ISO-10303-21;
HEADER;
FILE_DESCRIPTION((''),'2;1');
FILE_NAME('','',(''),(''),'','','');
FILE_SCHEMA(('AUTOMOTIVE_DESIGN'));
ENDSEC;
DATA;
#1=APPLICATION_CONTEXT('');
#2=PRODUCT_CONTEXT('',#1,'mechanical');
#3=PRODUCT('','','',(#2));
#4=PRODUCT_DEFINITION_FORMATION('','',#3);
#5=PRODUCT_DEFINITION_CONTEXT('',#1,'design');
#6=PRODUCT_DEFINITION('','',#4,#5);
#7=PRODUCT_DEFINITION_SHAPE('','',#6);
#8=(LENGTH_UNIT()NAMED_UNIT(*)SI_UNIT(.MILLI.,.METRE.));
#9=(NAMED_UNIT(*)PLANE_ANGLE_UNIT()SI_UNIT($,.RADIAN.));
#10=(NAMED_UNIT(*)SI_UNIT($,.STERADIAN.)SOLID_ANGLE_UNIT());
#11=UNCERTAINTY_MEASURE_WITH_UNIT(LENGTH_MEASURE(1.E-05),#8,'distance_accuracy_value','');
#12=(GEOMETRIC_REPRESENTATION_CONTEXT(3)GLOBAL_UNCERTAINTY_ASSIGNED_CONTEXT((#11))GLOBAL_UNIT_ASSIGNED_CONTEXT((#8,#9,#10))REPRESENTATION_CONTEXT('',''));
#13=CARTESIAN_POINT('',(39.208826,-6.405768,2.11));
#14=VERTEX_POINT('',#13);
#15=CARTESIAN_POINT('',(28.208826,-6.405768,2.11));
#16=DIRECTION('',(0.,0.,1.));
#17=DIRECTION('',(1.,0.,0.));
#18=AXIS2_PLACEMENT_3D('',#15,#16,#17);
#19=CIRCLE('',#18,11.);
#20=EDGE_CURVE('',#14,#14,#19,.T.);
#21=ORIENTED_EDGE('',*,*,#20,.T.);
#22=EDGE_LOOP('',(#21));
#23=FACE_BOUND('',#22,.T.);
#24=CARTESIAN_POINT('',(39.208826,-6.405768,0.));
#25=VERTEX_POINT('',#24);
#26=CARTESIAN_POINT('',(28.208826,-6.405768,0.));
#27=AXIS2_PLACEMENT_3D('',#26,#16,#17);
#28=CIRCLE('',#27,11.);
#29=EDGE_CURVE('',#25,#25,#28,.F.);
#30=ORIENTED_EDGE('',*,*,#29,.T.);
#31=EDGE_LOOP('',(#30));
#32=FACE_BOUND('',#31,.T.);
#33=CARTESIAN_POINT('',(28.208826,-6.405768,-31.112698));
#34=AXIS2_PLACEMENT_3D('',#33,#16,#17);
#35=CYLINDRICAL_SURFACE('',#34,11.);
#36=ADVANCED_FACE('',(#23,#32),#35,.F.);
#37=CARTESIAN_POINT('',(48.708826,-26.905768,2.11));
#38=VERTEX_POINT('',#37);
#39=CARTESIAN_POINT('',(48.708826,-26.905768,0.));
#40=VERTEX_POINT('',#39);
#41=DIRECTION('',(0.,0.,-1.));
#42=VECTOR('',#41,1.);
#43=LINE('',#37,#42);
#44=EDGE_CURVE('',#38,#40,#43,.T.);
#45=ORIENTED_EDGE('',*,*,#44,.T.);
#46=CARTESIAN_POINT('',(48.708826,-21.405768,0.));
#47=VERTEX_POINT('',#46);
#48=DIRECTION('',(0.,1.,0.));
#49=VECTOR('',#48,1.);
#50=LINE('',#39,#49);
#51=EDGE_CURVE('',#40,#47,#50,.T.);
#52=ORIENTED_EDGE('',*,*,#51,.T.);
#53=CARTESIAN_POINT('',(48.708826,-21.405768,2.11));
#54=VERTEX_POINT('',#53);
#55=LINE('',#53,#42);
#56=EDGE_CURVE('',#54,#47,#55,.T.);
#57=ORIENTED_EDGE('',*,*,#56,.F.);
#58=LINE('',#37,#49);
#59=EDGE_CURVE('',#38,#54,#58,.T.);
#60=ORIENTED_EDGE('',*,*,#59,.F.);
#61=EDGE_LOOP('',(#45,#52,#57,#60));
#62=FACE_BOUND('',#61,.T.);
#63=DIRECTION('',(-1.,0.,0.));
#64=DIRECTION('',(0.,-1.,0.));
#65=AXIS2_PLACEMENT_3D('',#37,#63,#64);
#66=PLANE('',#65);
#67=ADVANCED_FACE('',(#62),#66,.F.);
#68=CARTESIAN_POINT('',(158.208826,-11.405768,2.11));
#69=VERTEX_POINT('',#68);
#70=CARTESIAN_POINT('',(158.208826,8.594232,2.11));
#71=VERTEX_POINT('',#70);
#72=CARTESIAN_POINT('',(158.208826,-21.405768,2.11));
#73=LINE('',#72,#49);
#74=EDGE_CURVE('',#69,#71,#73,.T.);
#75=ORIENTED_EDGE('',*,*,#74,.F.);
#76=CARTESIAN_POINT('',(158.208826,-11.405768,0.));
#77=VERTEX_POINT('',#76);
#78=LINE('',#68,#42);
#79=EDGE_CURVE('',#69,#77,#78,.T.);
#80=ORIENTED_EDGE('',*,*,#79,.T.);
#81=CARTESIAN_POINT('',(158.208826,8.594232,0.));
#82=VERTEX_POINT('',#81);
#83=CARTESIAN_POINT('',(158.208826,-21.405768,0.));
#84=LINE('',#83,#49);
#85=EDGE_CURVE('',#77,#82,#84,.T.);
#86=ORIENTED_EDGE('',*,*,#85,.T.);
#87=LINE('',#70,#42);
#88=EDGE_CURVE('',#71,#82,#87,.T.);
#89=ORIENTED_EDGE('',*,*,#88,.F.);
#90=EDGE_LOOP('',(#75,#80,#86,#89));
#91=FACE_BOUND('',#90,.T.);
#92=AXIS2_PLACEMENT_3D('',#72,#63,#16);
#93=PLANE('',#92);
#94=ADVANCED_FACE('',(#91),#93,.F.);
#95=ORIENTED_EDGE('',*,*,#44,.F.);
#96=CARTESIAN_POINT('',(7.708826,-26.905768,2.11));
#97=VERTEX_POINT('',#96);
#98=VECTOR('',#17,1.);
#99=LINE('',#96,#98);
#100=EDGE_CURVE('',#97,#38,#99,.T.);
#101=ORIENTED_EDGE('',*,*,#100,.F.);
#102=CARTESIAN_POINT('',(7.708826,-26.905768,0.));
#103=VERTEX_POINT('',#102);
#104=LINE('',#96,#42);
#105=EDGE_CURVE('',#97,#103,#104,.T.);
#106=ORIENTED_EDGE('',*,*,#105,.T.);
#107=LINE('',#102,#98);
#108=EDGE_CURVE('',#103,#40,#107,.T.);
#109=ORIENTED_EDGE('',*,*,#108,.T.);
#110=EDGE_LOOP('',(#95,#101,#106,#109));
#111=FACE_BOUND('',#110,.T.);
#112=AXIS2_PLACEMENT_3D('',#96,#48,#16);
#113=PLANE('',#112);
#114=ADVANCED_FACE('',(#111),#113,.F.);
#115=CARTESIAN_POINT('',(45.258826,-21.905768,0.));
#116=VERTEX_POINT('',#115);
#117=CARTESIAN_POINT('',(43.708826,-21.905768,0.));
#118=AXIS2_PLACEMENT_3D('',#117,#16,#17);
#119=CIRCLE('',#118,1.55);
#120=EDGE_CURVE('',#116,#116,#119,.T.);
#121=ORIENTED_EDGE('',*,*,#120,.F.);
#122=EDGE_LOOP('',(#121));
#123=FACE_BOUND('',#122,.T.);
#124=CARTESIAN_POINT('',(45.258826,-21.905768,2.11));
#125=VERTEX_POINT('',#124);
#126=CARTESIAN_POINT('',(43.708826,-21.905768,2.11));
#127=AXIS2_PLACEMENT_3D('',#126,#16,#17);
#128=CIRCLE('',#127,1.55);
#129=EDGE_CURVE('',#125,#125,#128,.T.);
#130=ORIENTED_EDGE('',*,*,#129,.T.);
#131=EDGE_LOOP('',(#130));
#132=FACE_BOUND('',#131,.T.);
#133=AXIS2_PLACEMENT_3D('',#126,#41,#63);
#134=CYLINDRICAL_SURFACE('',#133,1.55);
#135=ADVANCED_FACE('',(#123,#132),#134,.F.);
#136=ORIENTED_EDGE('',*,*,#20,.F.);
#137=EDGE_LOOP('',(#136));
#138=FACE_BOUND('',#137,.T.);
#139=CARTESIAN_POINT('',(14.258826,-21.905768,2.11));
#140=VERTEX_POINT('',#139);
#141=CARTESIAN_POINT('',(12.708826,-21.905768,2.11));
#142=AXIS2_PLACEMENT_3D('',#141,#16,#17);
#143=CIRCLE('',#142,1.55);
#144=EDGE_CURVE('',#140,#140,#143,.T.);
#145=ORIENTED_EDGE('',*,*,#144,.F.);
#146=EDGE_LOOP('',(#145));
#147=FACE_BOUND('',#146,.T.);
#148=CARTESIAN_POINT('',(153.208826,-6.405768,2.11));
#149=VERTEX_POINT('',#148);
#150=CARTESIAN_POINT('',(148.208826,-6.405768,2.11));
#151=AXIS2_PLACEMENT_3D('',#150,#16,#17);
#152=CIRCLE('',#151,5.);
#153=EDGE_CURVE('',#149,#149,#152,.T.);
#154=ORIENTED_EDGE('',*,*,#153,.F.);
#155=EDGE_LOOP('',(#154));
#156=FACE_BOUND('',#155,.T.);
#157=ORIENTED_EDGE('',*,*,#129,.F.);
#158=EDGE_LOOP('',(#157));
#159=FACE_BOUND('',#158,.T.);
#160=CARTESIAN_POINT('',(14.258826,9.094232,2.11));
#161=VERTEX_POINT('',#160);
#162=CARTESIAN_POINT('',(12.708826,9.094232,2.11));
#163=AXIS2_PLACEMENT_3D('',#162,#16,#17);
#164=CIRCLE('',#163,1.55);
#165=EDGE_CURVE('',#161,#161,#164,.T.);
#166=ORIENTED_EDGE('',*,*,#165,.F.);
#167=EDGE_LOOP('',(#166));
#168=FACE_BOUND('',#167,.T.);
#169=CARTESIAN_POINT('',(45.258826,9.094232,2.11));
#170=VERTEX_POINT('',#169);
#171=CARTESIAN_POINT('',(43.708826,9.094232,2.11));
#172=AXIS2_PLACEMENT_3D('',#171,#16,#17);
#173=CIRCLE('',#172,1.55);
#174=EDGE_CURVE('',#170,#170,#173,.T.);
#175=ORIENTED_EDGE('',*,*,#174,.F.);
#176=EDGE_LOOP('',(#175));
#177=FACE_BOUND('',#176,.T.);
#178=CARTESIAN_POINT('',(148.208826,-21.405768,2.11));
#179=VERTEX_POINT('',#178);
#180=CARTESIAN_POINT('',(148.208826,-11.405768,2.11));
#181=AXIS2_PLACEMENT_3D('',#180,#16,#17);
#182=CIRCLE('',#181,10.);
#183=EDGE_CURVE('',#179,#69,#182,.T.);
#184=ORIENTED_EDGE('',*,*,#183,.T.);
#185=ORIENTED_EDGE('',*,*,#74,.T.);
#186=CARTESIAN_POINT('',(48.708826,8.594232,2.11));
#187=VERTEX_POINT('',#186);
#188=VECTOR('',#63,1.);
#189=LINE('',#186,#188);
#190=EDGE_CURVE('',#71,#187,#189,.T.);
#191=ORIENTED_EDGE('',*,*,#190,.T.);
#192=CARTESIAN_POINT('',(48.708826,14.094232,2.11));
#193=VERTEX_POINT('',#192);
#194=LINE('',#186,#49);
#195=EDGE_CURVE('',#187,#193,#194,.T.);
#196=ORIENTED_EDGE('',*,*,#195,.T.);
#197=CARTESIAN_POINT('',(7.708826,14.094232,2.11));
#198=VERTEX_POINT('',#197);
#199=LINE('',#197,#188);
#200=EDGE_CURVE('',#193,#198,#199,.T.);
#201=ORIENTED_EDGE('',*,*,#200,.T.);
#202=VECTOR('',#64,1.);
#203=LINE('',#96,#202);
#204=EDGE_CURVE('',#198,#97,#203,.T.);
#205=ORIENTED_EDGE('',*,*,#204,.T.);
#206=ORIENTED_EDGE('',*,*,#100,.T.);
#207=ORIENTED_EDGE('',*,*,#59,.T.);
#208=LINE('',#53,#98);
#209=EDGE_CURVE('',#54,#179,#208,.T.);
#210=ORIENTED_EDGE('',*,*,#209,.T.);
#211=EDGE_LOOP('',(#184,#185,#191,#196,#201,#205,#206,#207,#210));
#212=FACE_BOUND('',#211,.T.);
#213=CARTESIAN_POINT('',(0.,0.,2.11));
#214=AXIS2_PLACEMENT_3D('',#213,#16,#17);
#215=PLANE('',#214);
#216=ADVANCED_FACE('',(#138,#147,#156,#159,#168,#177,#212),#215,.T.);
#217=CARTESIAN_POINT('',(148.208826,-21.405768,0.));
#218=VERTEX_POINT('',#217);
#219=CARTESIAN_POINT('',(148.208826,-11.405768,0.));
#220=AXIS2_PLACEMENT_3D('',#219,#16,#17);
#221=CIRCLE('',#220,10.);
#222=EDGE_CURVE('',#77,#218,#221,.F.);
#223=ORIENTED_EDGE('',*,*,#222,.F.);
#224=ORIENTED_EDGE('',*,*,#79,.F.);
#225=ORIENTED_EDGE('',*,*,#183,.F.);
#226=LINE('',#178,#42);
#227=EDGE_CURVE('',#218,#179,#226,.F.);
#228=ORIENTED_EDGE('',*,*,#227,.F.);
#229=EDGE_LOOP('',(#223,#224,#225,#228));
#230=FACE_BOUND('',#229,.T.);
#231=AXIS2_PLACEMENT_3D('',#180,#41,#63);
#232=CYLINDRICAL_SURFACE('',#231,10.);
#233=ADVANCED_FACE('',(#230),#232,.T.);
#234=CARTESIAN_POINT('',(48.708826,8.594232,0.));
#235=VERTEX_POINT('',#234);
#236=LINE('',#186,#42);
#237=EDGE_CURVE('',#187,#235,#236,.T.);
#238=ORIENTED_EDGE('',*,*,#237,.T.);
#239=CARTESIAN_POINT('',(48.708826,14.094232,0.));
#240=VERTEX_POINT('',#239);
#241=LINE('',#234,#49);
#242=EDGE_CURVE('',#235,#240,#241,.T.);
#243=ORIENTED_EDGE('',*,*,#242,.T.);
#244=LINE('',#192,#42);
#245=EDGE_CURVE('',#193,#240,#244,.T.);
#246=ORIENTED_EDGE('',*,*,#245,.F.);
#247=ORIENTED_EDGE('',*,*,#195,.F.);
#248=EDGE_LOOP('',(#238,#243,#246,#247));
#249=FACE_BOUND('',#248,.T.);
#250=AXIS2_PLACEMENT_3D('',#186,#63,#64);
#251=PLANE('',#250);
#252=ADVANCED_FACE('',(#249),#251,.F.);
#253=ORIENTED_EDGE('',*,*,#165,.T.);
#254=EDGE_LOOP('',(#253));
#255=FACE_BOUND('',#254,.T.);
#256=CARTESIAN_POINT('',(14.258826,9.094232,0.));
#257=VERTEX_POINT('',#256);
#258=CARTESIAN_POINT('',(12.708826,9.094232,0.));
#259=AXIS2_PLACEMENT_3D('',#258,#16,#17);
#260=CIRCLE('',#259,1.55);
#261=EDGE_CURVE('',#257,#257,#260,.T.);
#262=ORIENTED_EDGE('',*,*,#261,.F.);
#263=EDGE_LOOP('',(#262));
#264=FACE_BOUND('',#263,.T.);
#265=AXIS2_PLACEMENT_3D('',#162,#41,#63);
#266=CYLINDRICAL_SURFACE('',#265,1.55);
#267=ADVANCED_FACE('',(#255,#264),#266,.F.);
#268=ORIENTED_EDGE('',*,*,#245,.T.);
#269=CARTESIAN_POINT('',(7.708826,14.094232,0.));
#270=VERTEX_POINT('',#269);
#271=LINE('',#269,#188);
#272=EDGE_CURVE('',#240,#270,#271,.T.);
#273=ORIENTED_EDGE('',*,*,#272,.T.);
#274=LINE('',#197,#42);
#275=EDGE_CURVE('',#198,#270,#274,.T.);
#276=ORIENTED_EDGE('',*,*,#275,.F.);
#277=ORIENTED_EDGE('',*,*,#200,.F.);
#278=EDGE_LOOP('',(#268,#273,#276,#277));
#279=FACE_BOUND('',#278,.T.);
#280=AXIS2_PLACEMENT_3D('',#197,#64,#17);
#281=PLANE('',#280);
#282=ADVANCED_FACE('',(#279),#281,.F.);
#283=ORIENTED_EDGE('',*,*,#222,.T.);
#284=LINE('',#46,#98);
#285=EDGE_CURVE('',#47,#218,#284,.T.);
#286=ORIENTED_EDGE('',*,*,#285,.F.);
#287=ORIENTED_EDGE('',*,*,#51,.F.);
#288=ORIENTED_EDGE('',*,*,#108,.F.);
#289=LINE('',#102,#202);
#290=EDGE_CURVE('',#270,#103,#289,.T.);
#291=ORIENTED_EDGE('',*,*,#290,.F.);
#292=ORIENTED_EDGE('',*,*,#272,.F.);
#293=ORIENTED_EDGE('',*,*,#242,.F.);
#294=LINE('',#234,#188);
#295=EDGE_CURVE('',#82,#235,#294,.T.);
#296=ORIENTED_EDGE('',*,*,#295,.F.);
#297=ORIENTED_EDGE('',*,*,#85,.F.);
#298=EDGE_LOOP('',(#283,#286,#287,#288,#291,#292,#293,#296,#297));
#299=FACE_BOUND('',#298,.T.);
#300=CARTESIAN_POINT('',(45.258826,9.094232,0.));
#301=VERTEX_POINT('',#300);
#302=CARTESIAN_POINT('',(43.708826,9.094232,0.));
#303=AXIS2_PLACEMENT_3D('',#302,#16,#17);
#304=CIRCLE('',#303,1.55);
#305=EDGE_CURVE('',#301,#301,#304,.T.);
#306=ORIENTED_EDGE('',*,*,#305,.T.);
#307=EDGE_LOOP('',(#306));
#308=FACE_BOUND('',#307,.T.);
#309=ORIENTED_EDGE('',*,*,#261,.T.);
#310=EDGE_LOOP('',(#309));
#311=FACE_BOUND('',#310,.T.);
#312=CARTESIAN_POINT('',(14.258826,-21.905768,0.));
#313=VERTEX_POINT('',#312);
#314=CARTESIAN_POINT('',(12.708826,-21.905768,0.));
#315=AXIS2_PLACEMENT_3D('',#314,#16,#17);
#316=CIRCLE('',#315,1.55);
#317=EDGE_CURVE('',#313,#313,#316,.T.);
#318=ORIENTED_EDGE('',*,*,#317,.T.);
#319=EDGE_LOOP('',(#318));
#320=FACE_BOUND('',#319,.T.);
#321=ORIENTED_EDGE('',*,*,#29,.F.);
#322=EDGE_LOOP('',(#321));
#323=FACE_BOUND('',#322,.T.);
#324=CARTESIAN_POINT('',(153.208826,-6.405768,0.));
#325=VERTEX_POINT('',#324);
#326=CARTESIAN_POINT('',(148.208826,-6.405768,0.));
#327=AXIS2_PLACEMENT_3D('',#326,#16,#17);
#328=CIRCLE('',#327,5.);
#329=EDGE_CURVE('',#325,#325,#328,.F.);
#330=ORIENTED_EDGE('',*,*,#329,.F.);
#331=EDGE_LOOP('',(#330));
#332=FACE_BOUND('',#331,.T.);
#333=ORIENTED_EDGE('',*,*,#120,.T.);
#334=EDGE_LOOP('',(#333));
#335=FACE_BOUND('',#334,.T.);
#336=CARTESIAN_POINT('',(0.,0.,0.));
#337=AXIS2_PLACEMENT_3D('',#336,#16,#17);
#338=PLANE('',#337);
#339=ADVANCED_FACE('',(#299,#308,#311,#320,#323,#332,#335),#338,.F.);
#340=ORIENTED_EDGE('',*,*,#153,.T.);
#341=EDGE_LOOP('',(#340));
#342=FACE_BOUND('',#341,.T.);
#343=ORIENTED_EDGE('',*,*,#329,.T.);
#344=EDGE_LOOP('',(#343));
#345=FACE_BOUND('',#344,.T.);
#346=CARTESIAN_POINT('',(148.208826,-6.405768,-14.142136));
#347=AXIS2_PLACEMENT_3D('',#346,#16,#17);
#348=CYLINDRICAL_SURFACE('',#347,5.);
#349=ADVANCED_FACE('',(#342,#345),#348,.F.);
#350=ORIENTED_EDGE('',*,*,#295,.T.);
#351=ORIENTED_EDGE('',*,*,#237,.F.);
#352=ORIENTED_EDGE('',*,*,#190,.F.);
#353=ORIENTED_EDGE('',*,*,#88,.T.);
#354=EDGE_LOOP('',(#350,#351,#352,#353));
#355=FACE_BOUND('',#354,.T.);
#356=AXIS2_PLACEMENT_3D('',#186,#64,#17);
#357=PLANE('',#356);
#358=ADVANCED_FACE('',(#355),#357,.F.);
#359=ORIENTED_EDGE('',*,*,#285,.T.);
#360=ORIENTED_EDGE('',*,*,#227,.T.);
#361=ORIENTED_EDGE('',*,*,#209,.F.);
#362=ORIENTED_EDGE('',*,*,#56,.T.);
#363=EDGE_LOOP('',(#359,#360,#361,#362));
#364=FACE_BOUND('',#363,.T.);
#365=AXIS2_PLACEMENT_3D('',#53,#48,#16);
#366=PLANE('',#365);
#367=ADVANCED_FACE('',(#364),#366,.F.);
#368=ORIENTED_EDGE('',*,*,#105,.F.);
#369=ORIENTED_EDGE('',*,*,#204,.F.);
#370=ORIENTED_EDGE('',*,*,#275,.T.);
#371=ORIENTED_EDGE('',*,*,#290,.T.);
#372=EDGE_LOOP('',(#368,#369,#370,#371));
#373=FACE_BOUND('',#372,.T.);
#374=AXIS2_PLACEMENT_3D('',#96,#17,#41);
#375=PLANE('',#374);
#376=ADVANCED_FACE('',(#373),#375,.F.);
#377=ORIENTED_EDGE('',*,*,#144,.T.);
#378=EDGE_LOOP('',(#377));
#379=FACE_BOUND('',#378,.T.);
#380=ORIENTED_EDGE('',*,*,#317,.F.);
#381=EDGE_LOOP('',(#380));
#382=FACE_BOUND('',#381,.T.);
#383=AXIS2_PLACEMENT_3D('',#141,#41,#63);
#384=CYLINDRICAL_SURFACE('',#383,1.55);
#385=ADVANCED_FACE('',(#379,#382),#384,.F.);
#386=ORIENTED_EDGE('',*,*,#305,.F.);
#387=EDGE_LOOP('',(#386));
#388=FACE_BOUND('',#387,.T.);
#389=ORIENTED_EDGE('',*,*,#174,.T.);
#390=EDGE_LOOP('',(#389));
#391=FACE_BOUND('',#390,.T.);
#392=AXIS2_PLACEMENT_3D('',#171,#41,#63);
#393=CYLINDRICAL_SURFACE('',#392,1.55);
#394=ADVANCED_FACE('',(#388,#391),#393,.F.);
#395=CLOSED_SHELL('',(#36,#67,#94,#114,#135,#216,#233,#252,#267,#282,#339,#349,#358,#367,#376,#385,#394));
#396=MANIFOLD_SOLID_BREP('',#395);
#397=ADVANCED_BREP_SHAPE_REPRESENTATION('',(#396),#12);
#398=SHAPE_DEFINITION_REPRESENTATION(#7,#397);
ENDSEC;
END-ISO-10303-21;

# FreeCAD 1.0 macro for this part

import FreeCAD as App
import Part
import Sketcher
from FreeCAD import Vector
Q = App.Units.Quantity


def edges_at(feature, points):
    """Names of the edges that pass closest to the given points."""
    edges = feature.Shape.Edges
    near = lambda p: min(range(len(edges)), key=lambda i: edges[i].distToShape(Part.Vertex(*p))[0])
    return sorted({f"Edge{near(p) + 1}" for p in points})


def add_polygon(sketch, points):
    """Adds a closed chain of lines whose ends are joined by coincident constraints."""
    first, n = sketch.GeometryCount, len(points)
    for a, b in zip(points, points[1:] + points[:1]):
        sketch.addGeometry(Part.LineSegment(App.Vector(*a, 0), App.Vector(*b, 0)), False)
    for i in range(n):
        sketch.addConstraint(Sketcher.Constraint("Coincident", first + i, 2, first + (i + 1) % n, 1))

doc = App.newDocument("Part")
params = doc.addObject("Spreadsheet::Sheet", "Params")
for row, (alias, value) in enumerate([
    ("sketch1_diameter", "3.1 mm"),
    ("sketch1_width", "41 mm"),
    ("sketch1_height", "30 mm"),
    ("sketch1_width2", "109.5 mm"),
    ("pad1_length", "2.11 mm"),
    ("sketch2_diameter", "22 mm"),
    ("pocket1_length", "2.11 mm"),
    ("sketch3_diameter", "10 mm"),
    ("pocket2_length", "2.11 mm"),
    ("fillet_radius", "10 mm"),
], start=1):
    params.set(f"A{row}", alias)
    params.set(f"B{row}", "=" + value)
    params.setAlias(f"B{row}", alias)

body = doc.addObject("PartDesign::Body", "Body")

# Sketch on XY plane
sketch1 = body.newObject("Sketcher::SketchObject", "Sketch")
sketch1.AttachmentSupport = (doc.getObject("XY_Plane"), [""])
sketch1.MapMode = "FlatFace"
add_polygon(sketch1, [(158.2, -21.4), (158.2, 8.6), (48.7, 8.6), (48.7, 14.1), (7.7, 14.1), (7.7, -26.9), (48.7, -26.9), (48.7, -21.4)])  # lines 0-7
sketch1.addGeometry(Part.Circle(Vector(12.7, -21.9, 0), Vector(0, 0, 1), 1.6), False)  # 8
sketch1.addGeometry(Part.Circle(Vector(43.7, -21.9, 0), Vector(0, 0, 1), 1.6), False)  # 9
sketch1.addGeometry(Part.Circle(Vector(12.7, 9.1, 0), Vector(0, 0, 1), 1.6), False)  # 10
sketch1.addGeometry(Part.Circle(Vector(43.7, 9.1, 0), Vector(0, 0, 1), 1.6), False)  # 11
sketch1.addConstraint(Sketcher.Constraint("Vertical", 0))
sketch1.addConstraint(Sketcher.Constraint("Horizontal", 1))
sketch1.addConstraint(Sketcher.Constraint("Vertical", 2))
sketch1.addConstraint(Sketcher.Constraint("Horizontal", 3))
sketch1.addConstraint(Sketcher.Constraint("Vertical", 4))
sketch1.addConstraint(Sketcher.Constraint("Horizontal", 5))
sketch1.addConstraint(Sketcher.Constraint("Vertical", 6))
sketch1.addConstraint(Sketcher.Constraint("Horizontal", 7))
sketch1.addConstraint(Sketcher.Constraint("Equal", 8, 9))
sketch1.addConstraint(Sketcher.Constraint("Equal", 9, 10))
sketch1.addConstraint(Sketcher.Constraint("Equal", 10, 11))
sketch1.addConstraint(Sketcher.Constraint("Horizontal", 8, 3, 9, 3))
sketch1.addConstraint(Sketcher.Constraint("Horizontal", 10, 3, 11, 3))
sketch1.addConstraint(Sketcher.Constraint("Vertical", 8, 3, 10, 3))
sketch1.addConstraint(Sketcher.Constraint("Vertical", 9, 3, 11, 3))
sketch1.addConstraint(Sketcher.Constraint("Vertical", 2, 2, 5, 2))
sketch1.addConstraint(Sketcher.Constraint("Equal", 5, 4))
sketch1.addConstraint(Sketcher.Constraint("Equal", 2, 6))
sketch1.addConstraint(Sketcher.Constraint("Diameter", 8, Q("3.1 mm")))
sketch1.addConstraint(Sketcher.Constraint("DistanceX", 3, 2, 3, 1, Q("41 mm")))
sketch1.addConstraint(Sketcher.Constraint("DistanceY", 0, 1, 0, 2, Q("30 mm")))
sketch1.addConstraint(Sketcher.Constraint("DistanceX", 1, 2, 1, 1, Q("109.5 mm")))
sketch1.addConstraint(Sketcher.Constraint("DistanceX", 8, 3, 9, 3, Q("31 mm")))
sketch1.addConstraint(Sketcher.Constraint("DistanceY", 8, 3, 10, 3, Q("31 mm")))
sketch1.addConstraint(Sketcher.Constraint("DistanceX", 11, 3, 1, 2, Q("5 mm")))
sketch1.addConstraint(Sketcher.Constraint("DistanceY", 11, 3, 2, 2, Q("5 mm")))
sketch1.addConstraint(Sketcher.Constraint("DistanceX", -1, 1, 8, 3, Q("12.708826 mm")))
sketch1.addConstraint(Sketcher.Constraint("DistanceY", 8, 3, -1, 1, Q("21.905768 mm")))
sketch1.setExpression("Constraints[26]", "Params.sketch1_diameter")
sketch1.setExpression("Constraints[27]", "Params.sketch1_width")
sketch1.setExpression("Constraints[28]", "Params.sketch1_height")
sketch1.setExpression("Constraints[29]", "Params.sketch1_width2")
pad1 = body.newObject("PartDesign::Pad", "Pad")
pad1.Profile = sketch1
pad1.setExpression("Length", "Params.pad1_length")

# Sketch on XY plane
sketch2 = body.newObject("Sketcher::SketchObject", "Sketch001")
sketch2.AttachmentSupport = (doc.getObject("XY_Plane"), [""])
sketch2.MapMode = "FlatFace"
sketch2.AttachmentOffset = App.Placement(Vector(0, 0, 2.11), App.Rotation())
sketch2.addGeometry(Part.Circle(Vector(28, -6, 0), Vector(0, 0, 1), 11), False)
sketch2.addConstraint(Sketcher.Constraint("Diameter", 0, Q("22 mm")))
sketch2.addConstraint(Sketcher.Constraint("DistanceX", -1, 1, 0, 3, Q("28.208826 mm")))
sketch2.addConstraint(Sketcher.Constraint("DistanceY", 0, 3, -1, 1, Q("6.405768 mm")))
sketch2.setExpression("Constraints[0]", "Params.sketch2_diameter")
pocket1 = body.newObject("PartDesign::Pocket", "Pocket")
pocket1.Profile = sketch2
pocket1.setExpression("Length", "Params.pocket1_length")

# Sketch on XY plane
sketch3 = body.newObject("Sketcher::SketchObject", "Sketch002")
sketch3.AttachmentSupport = (doc.getObject("XY_Plane"), [""])
sketch3.MapMode = "FlatFace"
sketch3.AttachmentOffset = App.Placement(Vector(0, 0, 2.11), App.Rotation())
sketch3.addGeometry(Part.Circle(Vector(148, -6, 0), Vector(0, 0, 1), 5), False)
sketch3.addConstraint(Sketcher.Constraint("Diameter", 0, Q("10 mm")))
sketch3.addConstraint(Sketcher.Constraint("DistanceX", -1, 1, 0, 3, Q("148.208826 mm")))
sketch3.addConstraint(Sketcher.Constraint("DistanceY", 0, 3, -1, 1, Q("6.405768 mm")))
sketch3.setExpression("Constraints[0]", "Params.sketch3_diameter")
pocket2 = body.newObject("PartDesign::Pocket", "Pocket001")
pocket2.Profile = sketch3
pocket2.setExpression("Length", "Params.pocket2_length")
doc.recompute()

fillet = body.newObject("PartDesign::Fillet", "Fillet")
fillet.Base = (pocket2, edges_at(pocket2, [(158.209, -21.406, 1.055)]))
fillet.setExpression("Radius", "Params.fillet_radius")

doc.recompute()
